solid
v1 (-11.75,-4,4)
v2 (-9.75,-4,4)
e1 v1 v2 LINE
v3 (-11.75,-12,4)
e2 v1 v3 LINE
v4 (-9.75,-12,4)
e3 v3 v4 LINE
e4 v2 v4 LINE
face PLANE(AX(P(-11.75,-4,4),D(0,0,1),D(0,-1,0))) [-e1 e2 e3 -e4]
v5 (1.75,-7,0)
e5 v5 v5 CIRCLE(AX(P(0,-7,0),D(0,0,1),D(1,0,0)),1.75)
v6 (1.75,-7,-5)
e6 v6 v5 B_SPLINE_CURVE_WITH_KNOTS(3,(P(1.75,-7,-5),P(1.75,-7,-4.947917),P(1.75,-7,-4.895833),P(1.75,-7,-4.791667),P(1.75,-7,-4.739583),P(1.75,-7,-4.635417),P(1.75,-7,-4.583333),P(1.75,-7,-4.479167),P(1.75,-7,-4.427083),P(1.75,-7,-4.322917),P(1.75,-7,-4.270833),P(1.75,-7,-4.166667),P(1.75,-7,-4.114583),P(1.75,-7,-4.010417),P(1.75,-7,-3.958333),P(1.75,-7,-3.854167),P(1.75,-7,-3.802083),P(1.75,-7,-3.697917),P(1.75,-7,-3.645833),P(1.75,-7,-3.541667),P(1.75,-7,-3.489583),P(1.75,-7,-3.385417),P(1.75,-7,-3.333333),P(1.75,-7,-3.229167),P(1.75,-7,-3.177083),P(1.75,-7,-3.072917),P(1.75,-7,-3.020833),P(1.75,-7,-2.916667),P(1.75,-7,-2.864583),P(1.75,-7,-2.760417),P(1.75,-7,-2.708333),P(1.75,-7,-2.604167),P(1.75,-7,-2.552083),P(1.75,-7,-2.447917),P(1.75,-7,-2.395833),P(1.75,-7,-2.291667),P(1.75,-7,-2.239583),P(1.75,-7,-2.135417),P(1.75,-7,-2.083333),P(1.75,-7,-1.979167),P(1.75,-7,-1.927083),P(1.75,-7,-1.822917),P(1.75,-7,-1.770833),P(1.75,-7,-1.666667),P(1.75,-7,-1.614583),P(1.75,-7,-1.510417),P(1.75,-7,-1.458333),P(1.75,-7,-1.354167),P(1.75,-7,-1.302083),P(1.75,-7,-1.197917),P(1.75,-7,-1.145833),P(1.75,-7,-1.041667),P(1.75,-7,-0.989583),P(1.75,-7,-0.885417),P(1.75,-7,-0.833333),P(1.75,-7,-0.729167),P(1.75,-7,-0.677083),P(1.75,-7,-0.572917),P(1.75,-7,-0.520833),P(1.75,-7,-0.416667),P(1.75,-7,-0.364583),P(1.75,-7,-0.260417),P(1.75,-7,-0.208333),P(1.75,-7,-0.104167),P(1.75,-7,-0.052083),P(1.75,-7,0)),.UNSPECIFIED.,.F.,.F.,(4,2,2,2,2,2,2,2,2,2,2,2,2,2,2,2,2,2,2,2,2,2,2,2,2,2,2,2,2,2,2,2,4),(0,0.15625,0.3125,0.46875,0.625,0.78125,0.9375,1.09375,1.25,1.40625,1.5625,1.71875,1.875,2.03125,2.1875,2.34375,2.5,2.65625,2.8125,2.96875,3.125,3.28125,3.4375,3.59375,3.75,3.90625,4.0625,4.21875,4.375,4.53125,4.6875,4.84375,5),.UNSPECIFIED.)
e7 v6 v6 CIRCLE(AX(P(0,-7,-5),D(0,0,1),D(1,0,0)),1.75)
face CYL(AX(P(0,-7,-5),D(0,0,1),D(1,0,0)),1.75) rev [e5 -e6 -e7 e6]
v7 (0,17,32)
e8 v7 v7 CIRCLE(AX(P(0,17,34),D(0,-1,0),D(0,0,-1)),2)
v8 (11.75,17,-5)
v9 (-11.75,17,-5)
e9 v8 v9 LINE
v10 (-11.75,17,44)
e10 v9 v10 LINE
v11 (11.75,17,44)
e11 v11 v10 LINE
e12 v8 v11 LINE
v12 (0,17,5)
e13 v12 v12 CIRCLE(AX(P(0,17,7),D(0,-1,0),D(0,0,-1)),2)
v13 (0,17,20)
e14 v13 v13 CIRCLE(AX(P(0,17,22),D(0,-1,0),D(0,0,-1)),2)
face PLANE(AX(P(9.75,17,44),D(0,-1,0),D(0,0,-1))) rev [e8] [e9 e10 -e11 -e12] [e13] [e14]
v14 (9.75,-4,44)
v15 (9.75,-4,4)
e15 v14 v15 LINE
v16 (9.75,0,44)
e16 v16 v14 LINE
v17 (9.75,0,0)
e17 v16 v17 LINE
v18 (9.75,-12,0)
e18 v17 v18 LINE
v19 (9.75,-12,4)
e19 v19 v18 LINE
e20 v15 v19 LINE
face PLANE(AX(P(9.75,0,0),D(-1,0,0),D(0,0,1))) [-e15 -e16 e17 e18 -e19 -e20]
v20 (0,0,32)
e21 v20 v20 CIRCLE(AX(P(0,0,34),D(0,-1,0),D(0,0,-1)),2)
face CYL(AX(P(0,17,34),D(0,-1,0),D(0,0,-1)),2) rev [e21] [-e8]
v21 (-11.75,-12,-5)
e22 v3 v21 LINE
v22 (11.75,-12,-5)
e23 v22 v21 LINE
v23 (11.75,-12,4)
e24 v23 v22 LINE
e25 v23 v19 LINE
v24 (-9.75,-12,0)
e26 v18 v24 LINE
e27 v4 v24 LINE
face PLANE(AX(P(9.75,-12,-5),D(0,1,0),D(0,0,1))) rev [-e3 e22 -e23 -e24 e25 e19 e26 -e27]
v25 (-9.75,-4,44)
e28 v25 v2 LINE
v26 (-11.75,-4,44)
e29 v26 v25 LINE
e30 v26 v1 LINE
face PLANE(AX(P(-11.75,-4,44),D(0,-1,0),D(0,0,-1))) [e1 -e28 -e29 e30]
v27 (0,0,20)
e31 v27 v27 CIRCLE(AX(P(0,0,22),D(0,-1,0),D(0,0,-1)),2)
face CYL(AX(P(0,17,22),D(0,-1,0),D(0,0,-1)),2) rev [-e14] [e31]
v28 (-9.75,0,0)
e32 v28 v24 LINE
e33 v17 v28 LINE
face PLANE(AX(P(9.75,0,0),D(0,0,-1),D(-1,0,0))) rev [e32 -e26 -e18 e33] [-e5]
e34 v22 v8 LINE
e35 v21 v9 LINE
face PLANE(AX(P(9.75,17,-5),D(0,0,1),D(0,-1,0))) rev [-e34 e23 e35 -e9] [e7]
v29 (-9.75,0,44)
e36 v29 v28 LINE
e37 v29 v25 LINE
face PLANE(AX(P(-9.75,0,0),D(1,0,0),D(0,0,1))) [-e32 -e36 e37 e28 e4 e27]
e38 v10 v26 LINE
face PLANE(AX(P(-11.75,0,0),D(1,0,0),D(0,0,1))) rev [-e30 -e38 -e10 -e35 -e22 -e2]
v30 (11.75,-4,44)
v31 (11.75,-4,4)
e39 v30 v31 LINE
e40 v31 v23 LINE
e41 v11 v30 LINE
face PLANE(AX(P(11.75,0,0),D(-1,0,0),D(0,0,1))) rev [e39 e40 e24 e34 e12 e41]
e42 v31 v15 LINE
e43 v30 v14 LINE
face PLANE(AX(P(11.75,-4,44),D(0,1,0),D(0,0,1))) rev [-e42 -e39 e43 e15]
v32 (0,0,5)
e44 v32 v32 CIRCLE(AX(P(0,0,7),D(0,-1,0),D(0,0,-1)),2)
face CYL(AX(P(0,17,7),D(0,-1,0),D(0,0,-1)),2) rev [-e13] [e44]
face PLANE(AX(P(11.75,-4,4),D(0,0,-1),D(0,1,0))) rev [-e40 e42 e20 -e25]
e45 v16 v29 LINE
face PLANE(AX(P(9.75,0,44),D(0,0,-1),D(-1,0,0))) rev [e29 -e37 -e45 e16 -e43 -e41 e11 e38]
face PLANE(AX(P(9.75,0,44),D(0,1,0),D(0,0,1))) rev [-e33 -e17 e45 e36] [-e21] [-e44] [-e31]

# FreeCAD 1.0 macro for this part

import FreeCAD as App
import Part
import Sketcher
from FreeCAD import Vector

doc = App.newDocument("Part")
params = doc.addObject("Spreadsheet::Sheet", "Params")
for row, (alias, value) in enumerate([
    ("sketch1_width", "12 mm"),
    ("sketch1_width2", "29 mm"),
    ("sketch1_height", "44 mm"),
    ("sketch1_height2", "5 mm"),
    ("pad1_length", "19.5 mm"),
    ("sketch2_width", "21 mm"),
    ("sketch2_width2", "8 mm"),
    ("sketch2_height", "40 mm"),
    ("sketch2_height2", "9 mm"),
    ("pad2_length", "2 mm"),
    ("sketch3_diameter", "4 mm"),
    ("sketch4_diameter", "3.5 mm"),
], start=1):
    params.set(f"A{row}", alias)
    params.set(f"B{row}", "=" + value)
    params.setAlias(f"B{row}", alias)

body = doc.addObject("PartDesign::Body", "Body")

sketch1 = body.newObject("Sketcher::SketchObject", "Sketch")
sketch1.AttachmentSupport = (doc.getObject("YZ_Plane"), [""])
sketch1.MapMode = "FlatFace"
sketch1.addGeometry(Part.LineSegment(Vector(0, 44, 0), Vector(0, 0, 0)), False)
sketch1.addGeometry(Part.LineSegment(Vector(0, 0, 0), Vector(-12, 0, 0)), False)
sketch1.addGeometry(Part.LineSegment(Vector(-12, 0, 0), Vector(-12, -5, 0)), False)
sketch1.addGeometry(Part.LineSegment(Vector(-12, -5, 0), Vector(17, -5, 0)), False)
sketch1.addGeometry(Part.LineSegment(Vector(17, -5, 0), Vector(17, 44, 0)), False)
sketch1.addGeometry(Part.LineSegment(Vector(17, 44, 0), Vector(0, 44, 0)), False)
sketch1.addConstraint(Sketcher.Constraint("Coincident", 0, 2, 1, 1))
sketch1.addConstraint(Sketcher.Constraint("Coincident", 1, 2, 2, 1))
sketch1.addConstraint(Sketcher.Constraint("Coincident", 2, 2, 3, 1))
sketch1.addConstraint(Sketcher.Constraint("Coincident", 3, 2, 4, 1))
sketch1.addConstraint(Sketcher.Constraint("Coincident", 4, 2, 5, 1))
sketch1.addConstraint(Sketcher.Constraint("Coincident", 5, 2, 0, 1))
sketch1.addConstraint(Sketcher.Constraint("Vertical", 0))
sketch1.addConstraint(Sketcher.Constraint("Horizontal", 1))
sketch1.addConstraint(Sketcher.Constraint("Vertical", 2))
sketch1.addConstraint(Sketcher.Constraint("Horizontal", 3))
sketch1.addConstraint(Sketcher.Constraint("Vertical", 4))
sketch1.addConstraint(Sketcher.Constraint("Horizontal", 5))
sketch1.addConstraint(Sketcher.Constraint("Coincident", 0, 2, -1, 1))
sketch1.addConstraint(Sketcher.Constraint("DistanceX", 1, 2, 1, 1, 12.0))
sketch1.addConstraint(Sketcher.Constraint("DistanceX", 3, 1, 3, 2, 29.0))
sketch1.addConstraint(Sketcher.Constraint("DistanceY", 0, 2, 0, 1, 44.0))
sketch1.addConstraint(Sketcher.Constraint("DistanceY", 2, 2, 2, 1, 5.0))
sketch1.setExpression("Constraints[13]", "Params.sketch1_width")
sketch1.setExpression("Constraints[14]", "Params.sketch1_width2")
sketch1.setExpression("Constraints[15]", "Params.sketch1_height")
sketch1.setExpression("Constraints[16]", "Params.sketch1_height2")
pad1 = body.newObject("PartDesign::Pad", "Pad")
pad1.Profile = sketch1
pad1.setExpression("Length", "Params.pad1_length")
pad1.Midplane = True

sketch2 = body.newObject("Sketcher::SketchObject", "Sketch001")
sketch2.AttachmentSupport = (doc.getObject("YZ_Plane"), [""])
sketch2.MapMode = "FlatFace"
sketch2.AttachmentOffset = App.Placement(Vector(0, 0, 9.75), App.Rotation())
sketch2.addGeometry(Part.LineSegment(Vector(17, 44, 0), Vector(-4, 44, 0)), False)
sketch2.addGeometry(Part.LineSegment(Vector(-4, 44, 0), Vector(-4, 4, 0)), False)
sketch2.addGeometry(Part.LineSegment(Vector(-4, 4, 0), Vector(-12, 4, 0)), False)
sketch2.addGeometry(Part.LineSegment(Vector(-12, 4, 0), Vector(-12, -5, 0)), False)
sketch2.addGeometry(Part.LineSegment(Vector(-12, -5, 0), Vector(17, -5, 0)), False)
sketch2.addGeometry(Part.LineSegment(Vector(17, -5, 0), Vector(17, 44, 0)), False)
sketch2.addConstraint(Sketcher.Constraint("Coincident", 0, 2, 1, 1))
sketch2.addConstraint(Sketcher.Constraint("Coincident", 1, 2, 2, 1))
sketch2.addConstraint(Sketcher.Constraint("Coincident", 2, 2, 3, 1))
sketch2.addConstraint(Sketcher.Constraint("Coincident", 3, 2, 4, 1))
sketch2.addConstraint(Sketcher.Constraint("Coincident", 4, 2, 5, 1))
sketch2.addConstraint(Sketcher.Constraint("Coincident", 5, 2, 0, 1))
sketch2.addConstraint(Sketcher.Constraint("Horizontal", 0))
sketch2.addConstraint(Sketcher.Constraint("Vertical", 1))
sketch2.addConstraint(Sketcher.Constraint("Horizontal", 2))
sketch2.addConstraint(Sketcher.Constraint("Vertical", 3))
sketch2.addConstraint(Sketcher.Constraint("Horizontal", 4))
sketch2.addConstraint(Sketcher.Constraint("Vertical", 5))
sketch2.addConstraint(Sketcher.Constraint("DistanceX", 0, 2, 0, 1, 21.0))
sketch2.addConstraint(Sketcher.Constraint("DistanceX", 2, 2, 2, 1, 8.0))
sketch2.addConstraint(Sketcher.Constraint("DistanceY", 1, 2, 1, 1, 40.0))
sketch2.addConstraint(Sketcher.Constraint("DistanceY", 3, 2, 3, 1, 9.0))
sketch2.addConstraint(Sketcher.Constraint("DistanceX", 0, 2, -1, 1, 4.0))
sketch2.addConstraint(Sketcher.Constraint("DistanceY", -1, 1, 0, 2, 44.0))
sketch2.setExpression("Constraints[12]", "Params.sketch2_width")
sketch2.setExpression("Constraints[13]", "Params.sketch2_width2")
sketch2.setExpression("Constraints[14]", "Params.sketch2_height")
sketch2.setExpression("Constraints[15]", "Params.sketch2_height2")
pad2 = body.newObject("PartDesign::Pad", "Pad001")
pad2.Profile = sketch2
pad2.setExpression("Length", "Params.pad2_length")
doc.recompute()

mirrored = body.newObject("PartDesign::Mirrored", "Mirrored")
mirrored.Originals = [pad2]
mirrored.MirrorPlane = (doc.getObject("YZ_Plane"), [""])
body.Tip = mirrored

sketch3 = body.newObject("Sketcher::SketchObject", "Sketch002")
sketch3.AttachmentSupport = (doc.getObject("XZ_Plane"), [""])
sketch3.MapMode = "FlatFace"
sketch3.addGeometry(Part.Circle(Vector(0, 34, 0), Vector(0, 0, 1), 2), False)
sketch3.addGeometry(Part.Circle(Vector(0, 22, 0), Vector(0, 0, 1), 2), False)
sketch3.addGeometry(Part.Circle(Vector(0, 7, 0), Vector(0, 0, 1), 2), False)
sketch3.addConstraint(Sketcher.Constraint("Equal", 0, 1))
sketch3.addConstraint(Sketcher.Constraint("Equal", 1, 2))
sketch3.addConstraint(Sketcher.Constraint("PointOnObject", 0, 3, -2))
sketch3.addConstraint(Sketcher.Constraint("PointOnObject", 1, 3, -2))
sketch3.addConstraint(Sketcher.Constraint("PointOnObject", 2, 3, -2))
sketch3.addConstraint(Sketcher.Constraint("Diameter", 0, 4.0))
sketch3.addConstraint(Sketcher.Constraint("DistanceY", -1, 1, 0, 3, 34.0))
sketch3.addConstraint(Sketcher.Constraint("DistanceY", -1, 1, 1, 3, 22.0))
sketch3.addConstraint(Sketcher.Constraint("DistanceY", -1, 1, 2, 3, 7.0))
sketch3.setExpression("Constraints[5]", "Params.sketch3_diameter")
pocket1 = body.newObject("PartDesign::Pocket", "Pocket")
pocket1.Profile = sketch3
pocket1.Type = "ThroughAll"

sketch4 = body.newObject("Sketcher::SketchObject", "Sketch003")
sketch4.AttachmentSupport = (doc.getObject("XY_Plane"), [""])
sketch4.MapMode = "FlatFace"
sketch4.addGeometry(Part.Circle(Vector(0, -7, 0), Vector(0, 0, 1), 1.8), False)
sketch4.addConstraint(Sketcher.Constraint("PointOnObject", 0, 3, -2))
sketch4.addConstraint(Sketcher.Constraint("Diameter", 0, 3.5))
sketch4.addConstraint(Sketcher.Constraint("DistanceY", 0, 3, -1, 1, 7.0))
sketch4.setExpression("Constraints[1]", "Params.sketch4_diameter")
pocket2 = body.newObject("PartDesign::Pocket", "Pocket001")
pocket2.Profile = sketch4
pocket2.Type = "ThroughAll"

doc.recompute()
